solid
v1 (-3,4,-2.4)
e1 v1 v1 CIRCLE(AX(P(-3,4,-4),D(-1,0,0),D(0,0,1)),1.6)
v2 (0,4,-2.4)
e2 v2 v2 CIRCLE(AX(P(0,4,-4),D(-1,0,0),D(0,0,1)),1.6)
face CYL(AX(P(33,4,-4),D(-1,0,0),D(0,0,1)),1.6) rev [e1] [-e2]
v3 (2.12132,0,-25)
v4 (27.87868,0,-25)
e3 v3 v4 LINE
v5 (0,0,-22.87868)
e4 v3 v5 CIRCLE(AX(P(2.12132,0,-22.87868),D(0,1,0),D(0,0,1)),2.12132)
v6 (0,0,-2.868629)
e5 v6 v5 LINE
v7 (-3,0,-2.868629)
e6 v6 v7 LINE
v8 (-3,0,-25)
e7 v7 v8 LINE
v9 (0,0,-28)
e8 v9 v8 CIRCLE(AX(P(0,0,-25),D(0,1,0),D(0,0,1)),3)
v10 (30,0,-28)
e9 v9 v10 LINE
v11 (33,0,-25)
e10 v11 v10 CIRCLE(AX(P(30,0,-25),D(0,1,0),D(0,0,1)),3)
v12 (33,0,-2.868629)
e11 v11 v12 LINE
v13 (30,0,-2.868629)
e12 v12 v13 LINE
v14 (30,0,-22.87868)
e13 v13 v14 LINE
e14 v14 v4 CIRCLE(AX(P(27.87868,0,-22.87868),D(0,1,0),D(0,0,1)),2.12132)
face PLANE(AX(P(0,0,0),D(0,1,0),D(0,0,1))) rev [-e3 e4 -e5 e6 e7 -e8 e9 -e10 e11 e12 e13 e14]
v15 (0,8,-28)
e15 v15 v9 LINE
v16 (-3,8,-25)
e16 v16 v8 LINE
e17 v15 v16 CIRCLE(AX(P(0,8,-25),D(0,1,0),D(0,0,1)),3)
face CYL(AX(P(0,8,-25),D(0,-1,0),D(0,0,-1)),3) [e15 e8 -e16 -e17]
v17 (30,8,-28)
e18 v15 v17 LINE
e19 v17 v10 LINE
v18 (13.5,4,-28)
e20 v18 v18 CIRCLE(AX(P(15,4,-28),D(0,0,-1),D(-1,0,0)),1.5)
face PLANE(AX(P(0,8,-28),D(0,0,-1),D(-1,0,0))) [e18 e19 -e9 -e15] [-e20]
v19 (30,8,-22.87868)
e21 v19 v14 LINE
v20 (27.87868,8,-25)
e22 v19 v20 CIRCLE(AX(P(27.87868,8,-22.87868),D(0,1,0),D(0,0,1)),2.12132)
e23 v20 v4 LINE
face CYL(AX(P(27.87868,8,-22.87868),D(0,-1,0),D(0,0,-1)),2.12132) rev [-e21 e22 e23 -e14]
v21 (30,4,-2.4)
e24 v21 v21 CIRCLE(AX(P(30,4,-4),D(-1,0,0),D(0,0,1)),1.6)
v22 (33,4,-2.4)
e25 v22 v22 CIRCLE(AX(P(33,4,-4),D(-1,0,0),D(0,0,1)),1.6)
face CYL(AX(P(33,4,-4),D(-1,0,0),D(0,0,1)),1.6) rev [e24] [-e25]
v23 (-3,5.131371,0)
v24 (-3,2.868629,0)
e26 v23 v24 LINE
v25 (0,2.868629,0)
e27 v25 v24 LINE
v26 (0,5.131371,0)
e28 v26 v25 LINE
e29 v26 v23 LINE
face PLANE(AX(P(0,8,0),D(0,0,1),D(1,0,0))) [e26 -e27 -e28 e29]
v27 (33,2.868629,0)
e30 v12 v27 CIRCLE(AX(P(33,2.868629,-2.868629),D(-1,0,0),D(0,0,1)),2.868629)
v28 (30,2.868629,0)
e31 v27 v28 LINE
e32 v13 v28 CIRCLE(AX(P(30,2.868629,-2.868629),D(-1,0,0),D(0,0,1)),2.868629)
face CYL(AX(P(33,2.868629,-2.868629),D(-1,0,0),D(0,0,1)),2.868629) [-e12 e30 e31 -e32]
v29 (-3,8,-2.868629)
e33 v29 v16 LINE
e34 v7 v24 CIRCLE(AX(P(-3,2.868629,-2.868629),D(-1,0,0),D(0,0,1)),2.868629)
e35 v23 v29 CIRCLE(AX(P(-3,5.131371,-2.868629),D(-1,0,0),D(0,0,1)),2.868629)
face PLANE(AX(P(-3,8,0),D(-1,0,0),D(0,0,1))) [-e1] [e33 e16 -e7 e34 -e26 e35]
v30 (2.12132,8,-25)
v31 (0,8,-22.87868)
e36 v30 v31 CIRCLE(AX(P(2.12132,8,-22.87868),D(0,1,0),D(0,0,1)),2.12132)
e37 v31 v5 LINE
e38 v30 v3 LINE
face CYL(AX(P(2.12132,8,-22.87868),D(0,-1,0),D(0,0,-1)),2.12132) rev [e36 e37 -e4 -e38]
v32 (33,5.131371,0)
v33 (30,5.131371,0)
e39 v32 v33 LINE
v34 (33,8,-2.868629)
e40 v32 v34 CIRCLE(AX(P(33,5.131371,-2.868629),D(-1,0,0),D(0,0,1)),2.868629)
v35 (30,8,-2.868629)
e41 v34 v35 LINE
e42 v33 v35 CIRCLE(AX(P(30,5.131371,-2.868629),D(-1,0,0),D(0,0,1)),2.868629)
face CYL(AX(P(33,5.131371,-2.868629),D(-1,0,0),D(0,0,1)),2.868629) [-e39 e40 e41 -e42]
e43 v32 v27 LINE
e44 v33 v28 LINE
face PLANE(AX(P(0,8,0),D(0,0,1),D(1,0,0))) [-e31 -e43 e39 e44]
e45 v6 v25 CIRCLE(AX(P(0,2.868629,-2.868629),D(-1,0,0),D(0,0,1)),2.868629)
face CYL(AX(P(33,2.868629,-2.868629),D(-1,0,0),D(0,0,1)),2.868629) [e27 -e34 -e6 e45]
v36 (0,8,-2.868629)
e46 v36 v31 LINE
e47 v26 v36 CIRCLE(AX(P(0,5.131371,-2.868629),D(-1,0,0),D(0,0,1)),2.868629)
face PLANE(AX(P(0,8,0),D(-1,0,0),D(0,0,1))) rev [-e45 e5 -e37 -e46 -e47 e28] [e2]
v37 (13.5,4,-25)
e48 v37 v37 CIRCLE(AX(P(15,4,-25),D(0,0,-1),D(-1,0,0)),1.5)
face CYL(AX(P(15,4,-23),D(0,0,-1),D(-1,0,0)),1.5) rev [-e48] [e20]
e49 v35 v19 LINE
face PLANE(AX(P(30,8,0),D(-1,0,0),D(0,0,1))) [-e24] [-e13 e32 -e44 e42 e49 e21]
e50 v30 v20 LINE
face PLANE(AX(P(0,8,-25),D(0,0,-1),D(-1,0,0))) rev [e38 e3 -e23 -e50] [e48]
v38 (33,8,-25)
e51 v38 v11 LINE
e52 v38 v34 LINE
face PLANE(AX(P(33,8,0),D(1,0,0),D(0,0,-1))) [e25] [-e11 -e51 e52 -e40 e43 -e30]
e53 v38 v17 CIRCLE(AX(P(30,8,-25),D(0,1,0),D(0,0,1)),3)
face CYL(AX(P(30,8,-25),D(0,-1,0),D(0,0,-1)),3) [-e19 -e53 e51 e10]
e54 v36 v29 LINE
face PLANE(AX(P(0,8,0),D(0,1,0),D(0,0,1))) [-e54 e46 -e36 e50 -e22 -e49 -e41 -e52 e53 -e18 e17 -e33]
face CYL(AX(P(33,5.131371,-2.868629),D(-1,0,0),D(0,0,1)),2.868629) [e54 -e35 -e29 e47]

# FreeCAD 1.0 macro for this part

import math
import FreeCAD as App
import Part
import Sketcher
from FreeCAD import Vector
Q = App.Units.Quantity

doc = App.newDocument("Part")
body = doc.addObject("PartDesign::Body", "Body")

# Sketch on XZ plane
sketch1 = body.newObject("Sketcher::SketchObject", "Sketch")
sketch1.AttachmentSupport = (doc.getObject("XZ_Plane"), [""])
sketch1.MapMode = "FlatFace"
sketch1.addGeometry(Part.LineSegment(Vector(-3, 0, 0), Vector(0, 0, 0)), False)
sketch1.addGeometry(Part.LineSegment(Vector(0, 0, 0), Vector(0, -22.87868, 0)), False)
sketch1.addGeometry(Part.ArcOfCircle(Part.Circle(Vector(2.12132, -22.87868, 0), Vector(0, 0, 1), 2.12132), math.radians(180), math.radians(225)), False)
sketch1.addGeometry(Part.ArcOfCircle(Part.Circle(Vector(2.12132, -22.87868, 0), Vector(0, 0, 1), 2.12132), math.radians(-135), math.radians(-90)), False)
sketch1.addGeometry(Part.LineSegment(Vector(2.12132, -25, 0), Vector(27.87868, -25, 0)), False)
sketch1.addGeometry(Part.ArcOfCircle(Part.Circle(Vector(27.87868, -22.87868, 0), Vector(0, 0, 1), 2.12132), math.radians(-90), math.radians(-45)), False)
sketch1.addGeometry(Part.ArcOfCircle(Part.Circle(Vector(27.87868, -22.87868, 0), Vector(0, 0, 1), 2.12132), math.radians(-45), math.radians(0)), False)
sketch1.addGeometry(Part.LineSegment(Vector(30, -22.87868, 0), Vector(30, 0, 0)), False)
sketch1.addGeometry(Part.LineSegment(Vector(30, 0, 0), Vector(33, 0, 0)), False)
sketch1.addGeometry(Part.LineSegment(Vector(33, 0, 0), Vector(33, -25, 0)), False)
sketch1.addGeometry(Part.ArcOfCircle(Part.Circle(Vector(30, -25, 0), Vector(0, 0, 1), 3), math.radians(-45), math.radians(0)), False)
sketch1.addGeometry(Part.ArcOfCircle(Part.Circle(Vector(30, -25, 0), Vector(0, 0, 1), 3), math.radians(-90), math.radians(-45)), False)
sketch1.addGeometry(Part.LineSegment(Vector(30, -28, 0), Vector(0, -28, 0)), False)
sketch1.addGeometry(Part.ArcOfCircle(Part.Circle(Vector(0, -25, 0), Vector(0, 0, 1), 3), math.radians(-135), math.radians(-90)), False)
sketch1.addGeometry(Part.ArcOfCircle(Part.Circle(Vector(0, -25, 0), Vector(0, 0, 1), 3), math.radians(180), math.radians(225)), False)
sketch1.addGeometry(Part.LineSegment(Vector(-3, -25, 0), Vector(-3, 0, 0)), False)
sketch1.addConstraint(Sketcher.Constraint("Coincident", 0, 2, 1, 1))
sketch1.addConstraint(Sketcher.Constraint("Tangent", 1, 2, 2, 1))
sketch1.addConstraint(Sketcher.Constraint("Tangent", 2, 2, 3, 1))
sketch1.addConstraint(Sketcher.Constraint("Tangent", 3, 2, 4, 1))
sketch1.addConstraint(Sketcher.Constraint("Tangent", 4, 2, 5, 1))
sketch1.addConstraint(Sketcher.Constraint("Tangent", 5, 2, 6, 1))
sketch1.addConstraint(Sketcher.Constraint("Tangent", 6, 2, 7, 1))
sketch1.addConstraint(Sketcher.Constraint("Coincident", 7, 2, 8, 1))
sketch1.addConstraint(Sketcher.Constraint("Coincident", 8, 2, 9, 1))
sketch1.addConstraint(Sketcher.Constraint("Tangent", 9, 2, 10, 2))
sketch1.addConstraint(Sketcher.Constraint("Tangent", 10, 1, 11, 2))
sketch1.addConstraint(Sketcher.Constraint("Tangent", 11, 1, 12, 1))
sketch1.addConstraint(Sketcher.Constraint("Tangent", 12, 2, 13, 2))
sketch1.addConstraint(Sketcher.Constraint("Tangent", 13, 1, 14, 2))
sketch1.addConstraint(Sketcher.Constraint("Tangent", 14, 1, 15, 1))
sketch1.addConstraint(Sketcher.Constraint("Coincident", 15, 2, 0, 1))
sketch1.addConstraint(Sketcher.Constraint("Horizontal", 0))
sketch1.addConstraint(Sketcher.Constraint("Vertical", 1))
sketch1.addConstraint(Sketcher.Constraint("Horizontal", 4))
sketch1.addConstraint(Sketcher.Constraint("Vertical", 7))
sketch1.addConstraint(Sketcher.Constraint("Horizontal", 8))
sketch1.addConstraint(Sketcher.Constraint("Vertical", 9))
sketch1.addConstraint(Sketcher.Constraint("Horizontal", 12))
sketch1.addConstraint(Sketcher.Constraint("Vertical", 15))
sketch1.addConstraint(Sketcher.Constraint("Coincident", 0, 2, -1, 1))
sketch1.addConstraint(Sketcher.Constraint("Equal", 2, 3))
sketch1.addConstraint(Sketcher.Constraint("Equal", 3, 5))
sketch1.addConstraint(Sketcher.Constraint("Equal", 5, 6))
sketch1.addConstraint(Sketcher.Constraint("Equal", 10, 11))
sketch1.addConstraint(Sketcher.Constraint("Equal", 11, 13))
sketch1.addConstraint(Sketcher.Constraint("Equal", 13, 14))
sketch1.addConstraint(Sketcher.Constraint("PointOnObject", 13, 3, -2))
sketch1.addConstraint(Sketcher.Constraint("PointOnObject", 7, 2, -1))
sketch1.addConstraint(Sketcher.Constraint("Horizontal", 14, 3, 3, 2))
sketch1.addConstraint(Sketcher.Constraint("Horizontal", 2, 2, 5, 2))
sketch1.addConstraint(Sketcher.Constraint("Horizontal", 10, 1, 13, 1))
sketch1.addConstraint(Sketcher.Constraint("Vertical", 11, 3, 6, 2))
sketch1.addConstraint(Sketcher.Constraint("Radius", 10, Q("3 mm")))
sketch1.addConstraint(Sketcher.Constraint("DistanceX", 12, 2, 12, 1, Q("30 mm")))
sketch1.addConstraint(Sketcher.Constraint("DistanceY", 9, 2, 9, 1, Q("25 mm")))
sketch1.addConstraint(Sketcher.Constraint("DistanceY", 2, 2, 1, 2, Q("1.5 mm")))
sketch1.addConstraint(Sketcher.Constraint("DistanceX", 2, 2, 3, 3, Q("1.5 mm")))
sketch1.addConstraint(Sketcher.Constraint("DistanceX", -1, 1, 10, 1, Q("32.12132 mm")))
pad1 = body.newObject("PartDesign::Pad", "Pad")
pad1.Profile = sketch1
pad1.Length = 8
pad1.Reversed = True

# Sketch on YZ plane
sketch2 = body.newObject("Sketcher::SketchObject", "Sketch001")
sketch2.AttachmentSupport = (doc.getObject("YZ_Plane"), [""])
sketch2.MapMode = "FlatFace"
sketch2.AttachmentOffset = App.Placement(Vector(0, 0, -3), App.Rotation())
sketch2.addGeometry(Part.ArcOfCircle(Part.Circle(Vector(4, -4, 0), Vector(0, 0, 1), 1.6), math.radians(135), math.radians(315)), False)
sketch2.addGeometry(Part.ArcOfCircle(Part.Circle(Vector(4, -4, 0), Vector(0, 0, 1), 1.6), math.radians(90), math.radians(135)), False)
sketch2.addGeometry(Part.ArcOfCircle(Part.Circle(Vector(4, -4, 0), Vector(0, 0, 1), 1.6), math.radians(-45), math.radians(90)), False)
sketch2.addConstraint(Sketcher.Constraint("Tangent", 0, 1, 1, 2))
sketch2.addConstraint(Sketcher.Constraint("Tangent", 1, 1, 2, 2))
sketch2.addConstraint(Sketcher.Constraint("Tangent", 2, 1, 0, 2))
sketch2.addConstraint(Sketcher.Constraint("Vertical", 2, 3, 1, 1))
sketch2.addConstraint(Sketcher.Constraint("Radius", 0, Q("1.6 mm")))
sketch2.addConstraint(Sketcher.Constraint("DistanceX", -1, 1, 0, 3, Q("4 mm")))
sketch2.addConstraint(Sketcher.Constraint("DistanceY", 0, 3, -1, 1, Q("4 mm")))
sketch2.addConstraint(Sketcher.Constraint("DistanceX", -1, 1, 0, 1, Q("2.868629 mm")))
sketch2.addConstraint(Sketcher.Constraint("DistanceX", -1, 1, 2, 1, Q("5.131371 mm")))
pocket1 = body.newObject("PartDesign::Pocket", "Pocket")
pocket1.Profile = sketch2
pocket1.Type = "ThroughAll"
pocket1.Midplane = True

# Sketch on YZ plane
sketch3 = body.newObject("Sketcher::SketchObject", "Sketch002")
sketch3.AttachmentSupport = (doc.getObject("YZ_Plane"), [""])
sketch3.MapMode = "FlatFace"
sketch3.AttachmentOffset = App.Placement(Vector(0, 0, -3), App.Rotation())
sketch3.addGeometry(Part.LineSegment(Vector(0, -2.868629, 0), Vector(-3.234663, -2.868629, 0)), False)
sketch3.addGeometry(Part.ArcOfCircle(Part.Circle(Vector(4, -2.868629, 0), Vector(0, 0, 1), 7.234663), math.radians(90), math.radians(180)), False)
sketch3.addGeometry(Part.ArcOfCircle(Part.Circle(Vector(4, -2.868629, 0), Vector(0, 0, 1), 7.234663), math.radians(0), math.radians(90)), False)
sketch3.addGeometry(Part.LineSegment(Vector(11.234663, -2.868629, 0), Vector(8, -2.868629, 0)), False)
sketch3.addGeometry(Part.ArcOfCircle(Part.Circle(Vector(5.131371, -2.868629, 0), Vector(0, 0, 1), 2.868629), math.radians(0), math.radians(90)), False)
sketch3.addGeometry(Part.LineSegment(Vector(5.131371, 0, 0), Vector(2.868629, 0, 0)), False)
sketch3.addGeometry(Part.ArcOfCircle(Part.Circle(Vector(2.868629, -2.868629, 0), Vector(0, 0, 1), 2.868629), math.radians(90), math.radians(180)), False)
sketch3.addConstraint(Sketcher.Constraint("Coincident", 0, 2, 1, 2))
sketch3.addConstraint(Sketcher.Constraint("Tangent", 1, 1, 2, 2))
sketch3.addConstraint(Sketcher.Constraint("Coincident", 2, 1, 3, 1))
sketch3.addConstraint(Sketcher.Constraint("Coincident", 3, 2, 4, 1))
sketch3.addConstraint(Sketcher.Constraint("Tangent", 4, 2, 5, 1))
sketch3.addConstraint(Sketcher.Constraint("Tangent", 5, 2, 6, 1))
sketch3.addConstraint(Sketcher.Constraint("Coincident", 6, 2, 0, 1))
sketch3.addConstraint(Sketcher.Constraint("Horizontal", 0))
sketch3.addConstraint(Sketcher.Constraint("Horizontal", 3))
sketch3.addConstraint(Sketcher.Constraint("Horizontal", 5))
sketch3.addConstraint(Sketcher.Constraint("Equal", 1, 2))
sketch3.addConstraint(Sketcher.Constraint("Equal", 4, 6))
sketch3.addConstraint(Sketcher.Constraint("PointOnObject", 4, 2, -1))
sketch3.addConstraint(Sketcher.Constraint("PointOnObject", 6, 2, -2))
sketch3.addConstraint(Sketcher.Constraint("Horizontal", 2, 3, 4, 3))
sketch3.addConstraint(Sketcher.Constraint("Horizontal", 6, 3, 0, 2))
sketch3.addConstraint(Sketcher.Constraint("Horizontal", 0, 2, 2, 1))
sketch3.addConstraint(Sketcher.Constraint("Vertical", 2, 3, 1, 1))
sketch3.addConstraint(Sketcher.Constraint("Equal", 0, 3))
sketch3.addConstraint(Sketcher.Constraint("DistanceX", -1, 1, 1, 3, Q("4 mm")))
sketch3.addConstraint(Sketcher.Constraint("Radius", 4, Q("2.868629 mm")))
sketch3.addConstraint(Sketcher.Constraint("Radius", 1, Q("7.234663 mm")))
pocket2 = body.newObject("PartDesign::Pocket", "Pocket001")
pocket2.Profile = sketch3
pocket2.Type = "ThroughAll"
pocket2.Midplane = True

# Sketch on XY plane
sketch4 = body.newObject("Sketcher::SketchObject", "Sketch003")
sketch4.AttachmentSupport = (doc.getObject("XY_Plane"), [""])
sketch4.MapMode = "FlatFace"
sketch4.AttachmentOffset = App.Placement(Vector(0, 0, -28), App.Rotation())
sketch4.addGeometry(Part.ArcOfCircle(Part.Circle(Vector(15, 4, 0), Vector(0, 0, 1), 1.5), math.radians(165.068583), math.radians(180)), False)
sketch4.addGeometry(Part.ArcOfCircle(Part.Circle(Vector(15, 4, 0), Vector(0, 0, 1), 1.5), math.radians(-14.931417), math.radians(165.068583)), False)
sketch4.addGeometry(Part.ArcOfCircle(Part.Circle(Vector(15, 4, 0), Vector(0, 0, 1), 1.5), math.radians(180), math.radians(345.068583)), False)
sketch4.addConstraint(Sketcher.Constraint("Tangent", 0, 1, 1, 2))
sketch4.addConstraint(Sketcher.Constraint("Tangent", 1, 1, 2, 2))
sketch4.addConstraint(Sketcher.Constraint("Tangent", 2, 1, 0, 2))
sketch4.addConstraint(Sketcher.Constraint("Horizontal", 1, 3, 2, 1))
sketch4.addConstraint(Sketcher.Constraint("Radius", 0, Q("1.5 mm")))
sketch4.addConstraint(Sketcher.Constraint("DistanceX", -1, 1, 0, 3, Q("15 mm")))
sketch4.addConstraint(Sketcher.Constraint("DistanceY", -1, 1, 0, 3, Q("4 mm")))
sketch4.addConstraint(Sketcher.Constraint("DistanceX", -1, 1, 0, 1, Q("13.550648 mm")))
sketch4.addConstraint(Sketcher.Constraint("DistanceX", -1, 1, 1, 1, Q("16.449352 mm")))
pocket3 = body.newObject("PartDesign::Pocket", "Pocket002")
pocket3.Profile = sketch4
pocket3.Length = 5
pocket3.Reversed = True

doc.recompute()
